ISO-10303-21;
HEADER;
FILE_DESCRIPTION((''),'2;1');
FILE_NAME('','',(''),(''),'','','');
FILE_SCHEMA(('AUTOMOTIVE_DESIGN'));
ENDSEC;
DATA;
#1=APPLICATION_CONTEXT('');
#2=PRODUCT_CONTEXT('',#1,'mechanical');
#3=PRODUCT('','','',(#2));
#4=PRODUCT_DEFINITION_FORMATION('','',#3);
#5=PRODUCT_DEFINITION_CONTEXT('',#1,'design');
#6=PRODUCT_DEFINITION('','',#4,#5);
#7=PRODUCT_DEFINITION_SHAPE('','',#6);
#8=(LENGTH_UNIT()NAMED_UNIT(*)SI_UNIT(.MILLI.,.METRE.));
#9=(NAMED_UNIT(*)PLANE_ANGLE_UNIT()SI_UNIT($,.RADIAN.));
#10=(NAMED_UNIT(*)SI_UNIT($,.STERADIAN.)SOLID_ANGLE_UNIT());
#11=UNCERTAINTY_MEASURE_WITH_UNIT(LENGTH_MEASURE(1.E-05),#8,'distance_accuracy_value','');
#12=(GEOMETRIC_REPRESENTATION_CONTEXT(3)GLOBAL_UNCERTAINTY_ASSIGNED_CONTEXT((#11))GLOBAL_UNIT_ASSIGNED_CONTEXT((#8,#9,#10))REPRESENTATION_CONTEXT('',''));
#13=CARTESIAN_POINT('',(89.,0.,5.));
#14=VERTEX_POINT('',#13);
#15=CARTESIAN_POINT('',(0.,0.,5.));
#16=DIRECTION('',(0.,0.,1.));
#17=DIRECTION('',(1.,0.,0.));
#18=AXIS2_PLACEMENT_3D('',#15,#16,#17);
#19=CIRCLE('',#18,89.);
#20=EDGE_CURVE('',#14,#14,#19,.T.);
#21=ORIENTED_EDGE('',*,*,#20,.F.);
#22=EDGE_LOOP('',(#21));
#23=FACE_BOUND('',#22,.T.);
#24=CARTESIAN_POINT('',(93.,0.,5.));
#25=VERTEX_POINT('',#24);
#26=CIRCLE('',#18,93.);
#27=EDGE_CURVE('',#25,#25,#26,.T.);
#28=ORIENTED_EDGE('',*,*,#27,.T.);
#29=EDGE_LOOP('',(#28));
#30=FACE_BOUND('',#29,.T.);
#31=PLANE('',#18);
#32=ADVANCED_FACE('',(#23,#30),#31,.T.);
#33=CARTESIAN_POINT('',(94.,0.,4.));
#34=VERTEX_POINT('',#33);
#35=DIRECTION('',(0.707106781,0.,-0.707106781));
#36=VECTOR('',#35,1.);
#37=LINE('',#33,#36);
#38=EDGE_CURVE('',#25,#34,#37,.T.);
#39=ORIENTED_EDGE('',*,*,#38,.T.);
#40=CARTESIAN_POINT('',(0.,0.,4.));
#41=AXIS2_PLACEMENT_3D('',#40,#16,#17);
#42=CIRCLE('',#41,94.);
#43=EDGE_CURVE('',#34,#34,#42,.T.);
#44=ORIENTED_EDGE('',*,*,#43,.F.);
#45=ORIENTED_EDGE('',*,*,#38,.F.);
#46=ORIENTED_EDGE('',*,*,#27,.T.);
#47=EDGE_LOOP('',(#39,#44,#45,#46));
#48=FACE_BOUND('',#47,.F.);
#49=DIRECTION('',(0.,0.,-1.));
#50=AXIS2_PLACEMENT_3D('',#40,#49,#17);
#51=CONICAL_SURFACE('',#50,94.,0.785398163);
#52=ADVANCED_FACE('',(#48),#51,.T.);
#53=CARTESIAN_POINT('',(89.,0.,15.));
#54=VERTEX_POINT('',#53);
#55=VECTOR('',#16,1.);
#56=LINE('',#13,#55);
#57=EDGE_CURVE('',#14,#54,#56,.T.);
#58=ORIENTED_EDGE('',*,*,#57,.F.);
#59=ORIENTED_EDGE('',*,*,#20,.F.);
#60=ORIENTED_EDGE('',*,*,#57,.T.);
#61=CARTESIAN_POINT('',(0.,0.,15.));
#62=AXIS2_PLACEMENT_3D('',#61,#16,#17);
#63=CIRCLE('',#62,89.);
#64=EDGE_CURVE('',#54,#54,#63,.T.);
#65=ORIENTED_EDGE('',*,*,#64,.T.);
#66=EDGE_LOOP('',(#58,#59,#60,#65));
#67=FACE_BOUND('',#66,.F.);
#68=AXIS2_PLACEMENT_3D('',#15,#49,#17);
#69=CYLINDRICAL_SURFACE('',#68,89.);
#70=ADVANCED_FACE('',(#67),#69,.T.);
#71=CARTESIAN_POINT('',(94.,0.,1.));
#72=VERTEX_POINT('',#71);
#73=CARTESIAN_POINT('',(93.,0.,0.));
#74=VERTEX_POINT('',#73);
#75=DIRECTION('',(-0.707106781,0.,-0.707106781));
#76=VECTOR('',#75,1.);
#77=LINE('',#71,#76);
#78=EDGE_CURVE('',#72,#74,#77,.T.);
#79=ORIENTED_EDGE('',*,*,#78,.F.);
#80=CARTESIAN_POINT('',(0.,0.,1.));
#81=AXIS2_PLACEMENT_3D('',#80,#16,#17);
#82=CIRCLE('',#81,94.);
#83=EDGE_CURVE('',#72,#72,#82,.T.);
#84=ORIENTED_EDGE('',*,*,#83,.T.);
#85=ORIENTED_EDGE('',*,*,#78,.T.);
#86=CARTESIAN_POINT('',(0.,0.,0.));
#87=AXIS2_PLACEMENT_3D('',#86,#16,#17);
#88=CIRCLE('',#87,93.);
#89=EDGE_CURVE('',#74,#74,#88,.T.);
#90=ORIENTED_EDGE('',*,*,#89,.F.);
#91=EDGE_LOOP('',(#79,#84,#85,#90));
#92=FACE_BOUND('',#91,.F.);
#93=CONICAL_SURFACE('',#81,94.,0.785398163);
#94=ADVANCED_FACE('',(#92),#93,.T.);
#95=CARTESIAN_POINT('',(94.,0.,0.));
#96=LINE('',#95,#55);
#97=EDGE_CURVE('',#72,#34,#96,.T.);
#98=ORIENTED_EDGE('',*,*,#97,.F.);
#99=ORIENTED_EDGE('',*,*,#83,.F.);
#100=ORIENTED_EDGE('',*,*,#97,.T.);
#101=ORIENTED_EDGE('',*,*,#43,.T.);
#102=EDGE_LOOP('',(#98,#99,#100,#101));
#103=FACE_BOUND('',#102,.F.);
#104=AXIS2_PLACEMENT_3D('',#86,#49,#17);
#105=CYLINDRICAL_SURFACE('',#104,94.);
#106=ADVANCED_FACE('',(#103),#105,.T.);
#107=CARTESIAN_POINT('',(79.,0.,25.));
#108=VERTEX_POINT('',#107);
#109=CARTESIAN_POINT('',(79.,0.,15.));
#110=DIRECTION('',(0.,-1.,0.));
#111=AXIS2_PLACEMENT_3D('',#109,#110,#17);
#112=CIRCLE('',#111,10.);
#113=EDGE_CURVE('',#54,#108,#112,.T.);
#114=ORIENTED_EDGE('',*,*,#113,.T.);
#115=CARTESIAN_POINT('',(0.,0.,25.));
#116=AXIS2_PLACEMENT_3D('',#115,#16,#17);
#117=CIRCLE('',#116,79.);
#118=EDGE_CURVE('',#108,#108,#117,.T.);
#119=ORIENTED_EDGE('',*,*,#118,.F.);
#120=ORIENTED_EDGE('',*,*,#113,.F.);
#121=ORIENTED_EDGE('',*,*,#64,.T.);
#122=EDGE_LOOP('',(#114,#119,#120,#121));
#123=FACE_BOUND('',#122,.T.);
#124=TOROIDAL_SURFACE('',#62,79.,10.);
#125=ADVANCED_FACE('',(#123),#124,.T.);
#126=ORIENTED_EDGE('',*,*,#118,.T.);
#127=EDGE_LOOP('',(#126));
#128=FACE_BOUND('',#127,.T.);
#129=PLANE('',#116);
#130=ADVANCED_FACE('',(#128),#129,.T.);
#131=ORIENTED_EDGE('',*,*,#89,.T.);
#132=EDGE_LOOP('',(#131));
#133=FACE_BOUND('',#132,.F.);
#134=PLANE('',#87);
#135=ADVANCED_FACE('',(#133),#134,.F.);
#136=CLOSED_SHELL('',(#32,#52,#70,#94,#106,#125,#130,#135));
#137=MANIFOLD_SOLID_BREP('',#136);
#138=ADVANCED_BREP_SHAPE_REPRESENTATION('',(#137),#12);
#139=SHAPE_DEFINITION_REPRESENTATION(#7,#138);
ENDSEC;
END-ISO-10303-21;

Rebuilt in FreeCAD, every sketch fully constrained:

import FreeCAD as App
import Part
import Sketcher
from FreeCAD import Vector


def edges_at(feature, points):
    """Names of the edges that pass closest to the given points."""
    edges = feature.Shape.Edges
    near = lambda p: min(range(len(edges)), key=lambda i: edges[i].distToShape(Part.Vertex(*p))[0])
    return sorted({f"Edge{near(p) + 1}" for p in points})

doc = App.newDocument("Part")
params = doc.addObject("Spreadsheet::Sheet", "Params")
for row, (alias, value) in enumerate([
    ("sketch1_diameter", "188 mm"),
    ("pad1_length", "5 mm"),
    ("sketch2_diameter", "178 mm"),
    ("pad2_length", "20 mm"),
    ("fillet_radius", "10 mm"),
    ("chamfer_size", "1 mm"),
], start=1):
    params.set(f"A{row}", alias)
    params.set(f"B{row}", "=" + value)
    params.setAlias(f"B{row}", alias)

body = doc.addObject("PartDesign::Body", "Body")

sketch1 = doc.addObject("Sketcher::SketchObject", "Sketch")
body.addObject(sketch1)
sketch1.AttachmentSupport = (doc.XY_Plane, [""])
sketch1.MapMode = "FlatFace"
sketch1.addGeometry(Part.Circle(Vector(0, 0, 0), Vector(0, 0, 1), 94), False)
sketch1.addConstraint(Sketcher.Constraint("Coincident", 0, 3, -1, 1))
sketch1.addConstraint(Sketcher.Constraint("Diameter", 0, 188.0))
sketch1.setExpression("Constraints[1]", "Params.sketch1_diameter")
pad1 = doc.addObject("PartDesign::Pad", "Pad")
body.addObject(pad1)
pad1.Profile = sketch1
pad1.setExpression("Length", "Params.pad1_length")

sketch2 = doc.addObject("Sketcher::SketchObject", "Sketch001")
body.addObject(sketch2)
sketch2.AttachmentSupport = (doc.XY_Plane, [""])
sketch2.MapMode = "FlatFace"
sketch2.AttachmentOffset = App.Placement(Vector(0, 0, 5), App.Rotation())
sketch2.addGeometry(Part.Circle(Vector(0, 0, 0), Vector(0, 0, 1), 89), False)
sketch2.addConstraint(Sketcher.Constraint("Coincident", 0, 3, -1, 1))
sketch2.addConstraint(Sketcher.Constraint("Diameter", 0, 178.0))
sketch2.setExpression("Constraints[1]", "Params.sketch2_diameter")
pad2 = doc.addObject("PartDesign::Pad", "Pad001")
body.addObject(pad2)
pad2.Profile = sketch2
pad2.setExpression("Length", "Params.pad2_length")
doc.recompute()

fillet = doc.addObject("PartDesign::Fillet", "Fillet")
body.addObject(fillet)
fillet.Base = (pad2, edges_at(pad2, [(-89, 0, 25)]))
fillet.setExpression("Radius", "Params.fillet_radius")
doc.recompute()

chamfer = doc.addObject("PartDesign::Chamfer", "Chamfer")
body.addObject(chamfer)
chamfer.Base = (fillet, edges_at(fillet, [(-94, 0, 0), (-94, 0, 5)]))
chamfer.setExpression("Size", "Params.chamfer_size")

doc.recompute()
